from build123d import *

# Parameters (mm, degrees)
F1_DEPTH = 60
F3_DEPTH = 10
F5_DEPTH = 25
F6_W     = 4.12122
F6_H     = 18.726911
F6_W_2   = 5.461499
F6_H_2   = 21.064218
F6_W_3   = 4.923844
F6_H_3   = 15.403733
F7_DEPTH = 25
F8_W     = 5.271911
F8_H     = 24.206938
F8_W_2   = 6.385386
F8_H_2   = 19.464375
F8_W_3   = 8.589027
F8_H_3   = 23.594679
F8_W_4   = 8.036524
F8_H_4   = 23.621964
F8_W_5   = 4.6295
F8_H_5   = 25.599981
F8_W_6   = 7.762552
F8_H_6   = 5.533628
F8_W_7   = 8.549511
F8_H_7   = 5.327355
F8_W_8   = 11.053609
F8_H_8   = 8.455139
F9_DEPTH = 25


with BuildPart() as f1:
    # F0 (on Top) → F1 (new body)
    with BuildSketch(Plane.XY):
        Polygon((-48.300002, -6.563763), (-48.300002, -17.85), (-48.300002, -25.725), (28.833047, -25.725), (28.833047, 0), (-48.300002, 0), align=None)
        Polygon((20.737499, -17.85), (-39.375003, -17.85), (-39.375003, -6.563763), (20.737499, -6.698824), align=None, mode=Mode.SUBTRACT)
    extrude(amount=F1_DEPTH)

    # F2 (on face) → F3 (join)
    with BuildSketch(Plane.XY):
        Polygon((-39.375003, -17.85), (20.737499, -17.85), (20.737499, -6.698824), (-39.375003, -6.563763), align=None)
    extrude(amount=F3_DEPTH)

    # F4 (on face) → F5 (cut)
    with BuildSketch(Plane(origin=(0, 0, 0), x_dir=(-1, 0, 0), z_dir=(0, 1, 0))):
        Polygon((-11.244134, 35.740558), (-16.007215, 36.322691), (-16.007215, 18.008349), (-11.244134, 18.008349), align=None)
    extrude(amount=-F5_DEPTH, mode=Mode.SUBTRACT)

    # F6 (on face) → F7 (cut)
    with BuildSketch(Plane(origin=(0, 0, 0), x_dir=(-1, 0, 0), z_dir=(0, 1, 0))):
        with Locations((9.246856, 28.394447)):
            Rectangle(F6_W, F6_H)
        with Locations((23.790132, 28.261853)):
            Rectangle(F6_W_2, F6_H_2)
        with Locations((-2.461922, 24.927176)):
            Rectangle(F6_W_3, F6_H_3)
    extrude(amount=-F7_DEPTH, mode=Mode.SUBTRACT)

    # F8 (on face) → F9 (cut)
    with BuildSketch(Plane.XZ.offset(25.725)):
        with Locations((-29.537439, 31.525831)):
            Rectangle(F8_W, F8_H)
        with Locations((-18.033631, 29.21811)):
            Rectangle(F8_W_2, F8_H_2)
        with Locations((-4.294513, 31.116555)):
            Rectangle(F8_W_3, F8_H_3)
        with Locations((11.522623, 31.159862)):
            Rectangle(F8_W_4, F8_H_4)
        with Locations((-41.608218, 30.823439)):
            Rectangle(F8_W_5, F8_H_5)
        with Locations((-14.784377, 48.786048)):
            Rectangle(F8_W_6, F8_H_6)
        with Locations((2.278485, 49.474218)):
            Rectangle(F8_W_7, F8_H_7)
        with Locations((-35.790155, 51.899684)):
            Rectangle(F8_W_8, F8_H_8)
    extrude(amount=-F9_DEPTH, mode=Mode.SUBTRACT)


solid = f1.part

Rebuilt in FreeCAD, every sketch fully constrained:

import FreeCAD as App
import Part
import Sketcher
Q = App.Units.Quantity


def add_polygon(sketch, points):
    """Adds a closed chain of lines whose ends are joined by coincident constraints."""
    first, n = sketch.GeometryCount, len(points)
    for a, b in zip(points, points[1:] + points[:1]):
        sketch.addGeometry(Part.LineSegment(App.Vector(*a, 0), App.Vector(*b, 0)), False)
    for i in range(n):
        sketch.addConstraint(Sketcher.Constraint("Coincident", first + i, 2, first + (i + 1) % n, 1))

doc = App.newDocument("Part")
body = doc.addObject("PartDesign::Body", "Body")

# Sketch on XY plane
sketch1 = body.newObject("Sketcher::SketchObject", "Sketch")
sketch1.AttachmentSupport = (doc.getObject("XY_Plane"), [""])
sketch1.MapMode = "FlatFace"
add_polygon(sketch1, [(-48.300002, -25.725), (28.833047, -25.725), (28.833047, 0), (-48.300002, 0)])  # lines 0-3
add_polygon(sketch1, [(20.737499, -6.698824), (20.737499, -17.85), (-39.375003, -17.85), (-39.375003, -6.563763)])  # lines 4-7
sketch1.addConstraint(Sketcher.Constraint("Horizontal", 0))
sketch1.addConstraint(Sketcher.Constraint("Vertical", 1))
sketch1.addConstraint(Sketcher.Constraint("Horizontal", 2))
sketch1.addConstraint(Sketcher.Constraint("Vertical", 3))
sketch1.addConstraint(Sketcher.Constraint("Vertical", 4))
sketch1.addConstraint(Sketcher.Constraint("Horizontal", 5))
sketch1.addConstraint(Sketcher.Constraint("Vertical", 6))
sketch1.addConstraint(Sketcher.Constraint("PointOnObject", 1, 2, -1))
sketch1.addConstraint(Sketcher.Constraint("DistanceY", 1, 1, 1, 2, Q("25.725 mm")))
sketch1.addConstraint(Sketcher.Constraint("DistanceY", 4, 2, -1, 1, Q("17.85 mm")))
sketch1.addConstraint(Sketcher.Constraint("DistanceX", 3, 2, 5, 2, Q("8.924999 mm")))
sketch1.addConstraint(Sketcher.Constraint("DistanceX", 0, 1, 0, 2, Q("77.133049 mm")))
sketch1.addConstraint(Sketcher.Constraint("DistanceX", -1, 1, 4, 2, Q("20.737499 mm")))
sketch1.addConstraint(Sketcher.Constraint("DistanceX", 3, 2, 4, 2, Q("69.037501 mm")))
sketch1.addConstraint(Sketcher.Constraint("DistanceY", 4, 2, 4, 1, Q("11.151176 mm")))
sketch1.addConstraint(Sketcher.Constraint("DistanceY", 6, 1, 6, 2, Q("11.286237 mm")))
pad1 = body.newObject("PartDesign::Pad", "Pad")
pad1.Profile = sketch1
pad1.Length = 60

# Sketch on XY plane
sketch2 = body.newObject("Sketcher::SketchObject", "Sketch001")
sketch2.AttachmentSupport = (doc.getObject("XY_Plane"), [""])
sketch2.MapMode = "FlatFace"
add_polygon(sketch2, [(-39.375003, -17.85), (20.737499, -17.85), (20.737499, -6.698824), (-39.375003, -6.563763)])  # lines 0-3
sketch2.addConstraint(Sketcher.Constraint("Horizontal", 0))
sketch2.addConstraint(Sketcher.Constraint("Vertical", 1))
sketch2.addConstraint(Sketcher.Constraint("Vertical", 3))
sketch2.addConstraint(Sketcher.Constraint("DistanceY", 0, 2, -1, 1, Q("17.85 mm")))
sketch2.addConstraint(Sketcher.Constraint("DistanceX", -1, 1, 0, 2, Q("20.737499 mm")))
sketch2.addConstraint(Sketcher.Constraint("DistanceX", 0, 1, 0, 2, Q("60.112502 mm")))
sketch2.addConstraint(Sketcher.Constraint("DistanceY", 1, 1, 1, 2, Q("11.151176 mm")))
sketch2.addConstraint(Sketcher.Constraint("DistanceY", 3, 2, 3, 1, Q("11.286237 mm")))
pad2 = body.newObject("PartDesign::Pad", "Pad001")
pad2.Profile = sketch2
pad2.Length = 10

# Sketch on XZ plane
sketch3 = body.newObject("Sketcher::SketchObject", "Sketch002")
sketch3.AttachmentSupport = (doc.getObject("XZ_Plane"), [""])
sketch3.MapMode = "FlatFace"
add_polygon(sketch3, [(11.244134, 35.740558), (16.007215, 36.322691), (16.007215, 18.008349), (11.244134, 18.008349)])  # lines 0-3
sketch3.addConstraint(Sketcher.Constraint("Vertical", 1))
sketch3.addConstraint(Sketcher.Constraint("Horizontal", 2))
sketch3.addConstraint(Sketcher.Constraint("Vertical", 3))
sketch3.addConstraint(Sketcher.Constraint("DistanceX", 2, 2, 2, 1, Q("4.763081 mm")))
sketch3.addConstraint(Sketcher.Constraint("DistanceY", 1, 2, 1, 1, Q("18.314342 mm")))
sketch3.addConstraint(Sketcher.Constraint("DistanceY", 3, 1, 3, 2, Q("17.732209 mm")))
sketch3.addConstraint(Sketcher.Constraint("DistanceY", -1, 1, 0, 2, Q("36.322691 mm")))
sketch3.addConstraint(Sketcher.Constraint("DistanceX", -1, 1, 0, 2, Q("16.007215 mm")))
pocket1 = body.newObject("PartDesign::Pocket", "Pocket")
pocket1.Profile = sketch3
pocket1.Length = 25
pocket1.Reversed = True

# Sketch on XZ plane
sketch4 = body.newObject("Sketcher::SketchObject", "Sketch003")
sketch4.AttachmentSupport = (doc.getObject("XZ_Plane"), [""])
sketch4.MapMode = "FlatFace"
add_polygon(sketch4, [(-7.186246, 37.757903), (-7.186246, 19.030991), (-11.307466, 19.030991), (-11.307466, 37.757903)])  # lines 0-3
add_polygon(sketch4, [(-21.059383, 38.793962), (-21.059383, 17.729744), (-26.520882, 17.729744), (-26.520882, 38.793962)])  # lines 4-7
add_polygon(sketch4, [(4.923844, 32.629042), (4.923844, 17.22531), (0, 17.22531), (0, 32.629042)])  # lines 8-11
sketch4.addConstraint(Sketcher.Constraint("Vertical", 0))
sketch4.addConstraint(Sketcher.Constraint("Horizontal", 1))
sketch4.addConstraint(Sketcher.Constraint("Vertical", 2))
sketch4.addConstraint(Sketcher.Constraint("Horizontal", 3))
sketch4.addConstraint(Sketcher.Constraint("Vertical", 4))
sketch4.addConstraint(Sketcher.Constraint("Horizontal", 5))
sketch4.addConstraint(Sketcher.Constraint("Vertical", 6))
sketch4.addConstraint(Sketcher.Constraint("Horizontal", 7))
sketch4.addConstraint(Sketcher.Constraint("Vertical", 8))
sketch4.addConstraint(Sketcher.Constraint("Horizontal", 9))
sketch4.addConstraint(Sketcher.Constraint("Vertical", 10))
sketch4.addConstraint(Sketcher.Constraint("Horizontal", 11))
sketch4.addConstraint(Sketcher.Constraint("PointOnObject", 9, 2, -2))
sketch4.addConstraint(Sketcher.Constraint("DistanceX", 5, 2, 5, 1, Q("5.461499 mm")))
sketch4.addConstraint(Sketcher.Constraint("DistanceX", 1, 2, 1, 1, Q("4.12122 mm")))
sketch4.addConstraint(Sketcher.Constraint("DistanceY", 0, 2, 0, 1, Q("18.726911 mm")))
sketch4.addConstraint(Sketcher.Constraint("DistanceY", 4, 2, 4, 1, Q("21.064218 mm")))
sketch4.addConstraint(Sketcher.Constraint("DistanceX", 9, 2, 9, 1, Q("4.923844 mm")))
sketch4.addConstraint(Sketcher.Constraint("DistanceY", 8, 2, 8, 1, Q("15.403733 mm")))
sketch4.addConstraint(Sketcher.Constraint("DistanceY", -1, 1, 0, 2, Q("19.030991 mm")))
sketch4.addConstraint(Sketcher.Constraint("DistanceX", 5, 2, -1, 1, Q("26.520882 mm")))
sketch4.addConstraint(Sketcher.Constraint("DistanceY", -1, 1, 8, 2, Q("17.22531 mm")))
sketch4.addConstraint(Sketcher.Constraint("DistanceY", 4, 2, 2, 2, Q("20.028158 mm")))
sketch4.addConstraint(Sketcher.Constraint("DistanceX", 0, 2, 8, 2, Q("12.11009 mm")))
pocket2 = body.newObject("PartDesign::Pocket", "Pocket001")
pocket2.Profile = sketch4
pocket2.Length = 25
pocket2.Reversed = True

# Sketch on XZ plane
sketch5 = body.newObject("Sketcher::SketchObject", "Sketch004")
sketch5.AttachmentSupport = (doc.getObject("XZ_Plane"), [""])
sketch5.MapMode = "FlatFace"
sketch5.AttachmentOffset = App.Placement(App.Vector(0, 0, 25.725), App.Rotation())
add_polygon(sketch5, [(-32.173395, 43.6293), (-32.173395, 19.422362), (-26.901484, 19.422362), (-26.901484, 43.6293)])  # lines 0-3
add_polygon(sketch5, [(-21.226324, 38.950297), (-21.226324, 19.485923), (-14.840938, 19.485923), (-14.840938, 38.950297)])  # lines 4-7
add_polygon(sketch5, [(-8.589026, 42.913894), (-8.589026, 19.319215), (0, 19.319215), (0, 42.913894)])  # lines 8-11
add_polygon(sketch5, [(7.504361, 42.970844), (7.504361, 19.34888), (15.540885, 19.34888), (15.540885, 42.970844)])  # lines 12-15
add_polygon(sketch5, [(-43.922968, 43.62343), (-43.922968, 18.023449), (-39.293468, 18.023449), (-39.293468, 43.62343)])  # lines 16-19
add_polygon(sketch5, [(-18.665653, 51.552862), (-18.665653, 46.019234), (-10.903101, 46.019234), (-10.903101, 51.552862)])  # lines 20-23
add_polygon(sketch5, [(-1.996271, 52.137895), (-1.996271, 46.810541), (6.553241, 46.810541), (6.553241, 52.137895)])  # lines 24-27
add_polygon(sketch5, [(-41.31696, 56.127254), (-41.31696, 47.672114), (-30.263351, 47.672114), (-30.263351, 56.127254)])  # lines 28-31
sketch5.addConstraint(Sketcher.Constraint("Vertical", 0))
sketch5.addConstraint(Sketcher.Constraint("Horizontal", 1))
sketch5.addConstraint(Sketcher.Constraint("Vertical", 2))
sketch5.addConstraint(Sketcher.Constraint("Horizontal", 3))
sketch5.addConstraint(Sketcher.Constraint("Vertical", 4))
sketch5.addConstraint(Sketcher.Constraint("Horizontal", 5))
sketch5.addConstraint(Sketcher.Constraint("Vertical", 6))
sketch5.addConstraint(Sketcher.Constraint("Horizontal", 7))
sketch5.addConstraint(Sketcher.Constraint("Vertical", 8))
sketch5.addConstraint(Sketcher.Constraint("Horizontal", 9))
sketch5.addConstraint(Sketcher.Constraint("Vertical", 10))
sketch5.addConstraint(Sketcher.Constraint("Horizontal", 11))
sketch5.addConstraint(Sketcher.Constraint("Vertical", 12))
sketch5.addConstraint(Sketcher.Constraint("Horizontal", 13))
sketch5.addConstraint(Sketcher.Constraint("Vertical", 14))
sketch5.addConstraint(Sketcher.Constraint("Horizontal", 15))
sketch5.addConstraint(Sketcher.Constraint("Vertical", 16))
sketch5.addConstraint(Sketcher.Constraint("Horizontal", 17))
sketch5.addConstraint(Sketcher.Constraint("Vertical", 18))
sketch5.addConstraint(Sketcher.Constraint("Horizontal", 19))
sketch5.addConstraint(Sketcher.Constraint("Vertical", 20))
sketch5.addConstraint(Sketcher.Constraint("Horizontal", 21))
sketch5.addConstraint(Sketcher.Constraint("Vertical", 22))
sketch5.addConstraint(Sketcher.Constraint("Horizontal", 23))
sketch5.addConstraint(Sketcher.Constraint("Vertical", 24))
sketch5.addConstraint(Sketcher.Constraint("Horizontal", 25))
sketch5.addConstraint(Sketcher.Constraint("Vertical", 26))
sketch5.addConstraint(Sketcher.Constraint("Horizontal", 27))
sketch5.addConstraint(Sketcher.Constraint("Vertical", 28))
sketch5.addConstraint(Sketcher.Constraint("Horizontal", 29))
sketch5.addConstraint(Sketcher.Constraint("Vertical", 30))
sketch5.addConstraint(Sketcher.Constraint("Horizontal", 31))
sketch5.addConstraint(Sketcher.Constraint("PointOnObject", 9, 2, -2))
sketch5.addConstraint(Sketcher.Constraint("DistanceX", 17, 1, 17, 2, Q("4.6295 mm")))
sketch5.addConstraint(Sketcher.Constraint("DistanceY", 10, 2, 26, 2, Q("9.224001 mm")))
sketch5.addConstraint(Sketcher.Constraint("DistanceX", 1, 1, 1, 2, Q("5.271911 mm")))
sketch5.addConstraint(Sketcher.Constraint("DistanceX", 21, 1, 21, 2, Q("7.762552 mm")))
sketch5.addConstraint(Sketcher.Constraint("DistanceX", 25, 1, 25, 2, Q("8.549511 mm")))
sketch5.addConstraint(Sketcher.Constraint("DistanceX", 29, 1, 29, 2, Q("11.053609 mm")))
sketch5.addConstraint(Sketcher.Constraint("DistanceY", 0, 2, 0, 1, Q("24.206938 mm")))
sketch5.addConstraint(Sketcher.Constraint("DistanceY", 8, 2, 8, 1, Q("23.594679 mm")))
sketch5.addConstraint(Sketcher.Constraint("DistanceY", 16, 2, 16, 1, Q("25.599981 mm")))
sketch5.addConstraint(Sketcher.Constraint("DistanceY", 20, 2, 20, 1, Q("5.533628 mm")))
sketch5.addConstraint(Sketcher.Constraint("DistanceY", 28, 2, 28, 1, Q("8.455139 mm")))
sketch5.addConstraint(Sketcher.Constraint("DistanceY", -1, 1, 2, 2, Q("43.6293 mm")))
sketch5.addConstraint(Sketcher.Constraint("DistanceX", 21, 2, -1, 1, Q("10.903101 mm")))
sketch5.addConstraint(Sketcher.Constraint("DistanceX", 5, 2, 12, 2, Q("22.345299 mm")))
sketch5.addConstraint(Sketcher.Constraint("DistanceX", 5, 1, 5, 2, Q("6.385386 mm")))
sketch5.addConstraint(Sketcher.Constraint("DistanceX", 9, 1, 9, 2, Q("8.589027 mm")))
sketch5.addConstraint(Sketcher.Constraint("DistanceX", 13, 1, 13, 2, Q("8.036524 mm")))
sketch5.addConstraint(Sketcher.Constraint("DistanceY", 4, 2, 4, 1, Q("19.464375 mm")))
sketch5.addConstraint(Sketcher.Constraint("DistanceY", 12, 2, 12, 1, Q("23.621964 mm")))
sketch5.addConstraint(Sketcher.Constraint("DistanceY", 24, 2, 24, 1, Q("5.327355 mm")))
sketch5.addConstraint(Sketcher.Constraint("DistanceX", -1, 1, 12, 2, Q("7.504361 mm")))
sketch5.addConstraint(Sketcher.Constraint("DistanceY", -1, 1, 12, 2, Q("19.34888 mm")))
sketch5.addConstraint(Sketcher.Constraint("DistanceY", -1, 1, 16, 2, Q("18.023449 mm")))
sketch5.addConstraint(Sketcher.Constraint("DistanceY", -1, 1, 22, 2, Q("51.552862 mm")))
sketch5.addConstraint(Sketcher.Constraint("DistanceX", 24, 2, -1, 1, Q("1.996271 mm")))
sketch5.addConstraint(Sketcher.Constraint("DistanceY", -1, 1, 24, 2, Q("46.810541 mm")))
sketch5.addConstraint(Sketcher.Constraint("DistanceX", 28, 2, -1, 1, Q("41.31696 mm")))
sketch5.addConstraint(Sketcher.Constraint("DistanceX", 1, 2, 4, 2, Q("5.675159 mm")))
sketch5.addConstraint(Sketcher.Constraint("DistanceY", 1, 2, 4, 2, Q("0.063561 mm")))
sketch5.addConstraint(Sketcher.Constraint("DistanceX", 16, 2, 5, 2, Q("29.08203 mm")))
sketch5.addConstraint(Sketcher.Constraint("DistanceY", 20, 2, 29, 2, Q("1.652881 mm")))
pocket3 = body.newObject("PartDesign::Pocket", "Pocket002")
pocket3.Profile = sketch5
pocket3.Length = 25

doc.recompute()
